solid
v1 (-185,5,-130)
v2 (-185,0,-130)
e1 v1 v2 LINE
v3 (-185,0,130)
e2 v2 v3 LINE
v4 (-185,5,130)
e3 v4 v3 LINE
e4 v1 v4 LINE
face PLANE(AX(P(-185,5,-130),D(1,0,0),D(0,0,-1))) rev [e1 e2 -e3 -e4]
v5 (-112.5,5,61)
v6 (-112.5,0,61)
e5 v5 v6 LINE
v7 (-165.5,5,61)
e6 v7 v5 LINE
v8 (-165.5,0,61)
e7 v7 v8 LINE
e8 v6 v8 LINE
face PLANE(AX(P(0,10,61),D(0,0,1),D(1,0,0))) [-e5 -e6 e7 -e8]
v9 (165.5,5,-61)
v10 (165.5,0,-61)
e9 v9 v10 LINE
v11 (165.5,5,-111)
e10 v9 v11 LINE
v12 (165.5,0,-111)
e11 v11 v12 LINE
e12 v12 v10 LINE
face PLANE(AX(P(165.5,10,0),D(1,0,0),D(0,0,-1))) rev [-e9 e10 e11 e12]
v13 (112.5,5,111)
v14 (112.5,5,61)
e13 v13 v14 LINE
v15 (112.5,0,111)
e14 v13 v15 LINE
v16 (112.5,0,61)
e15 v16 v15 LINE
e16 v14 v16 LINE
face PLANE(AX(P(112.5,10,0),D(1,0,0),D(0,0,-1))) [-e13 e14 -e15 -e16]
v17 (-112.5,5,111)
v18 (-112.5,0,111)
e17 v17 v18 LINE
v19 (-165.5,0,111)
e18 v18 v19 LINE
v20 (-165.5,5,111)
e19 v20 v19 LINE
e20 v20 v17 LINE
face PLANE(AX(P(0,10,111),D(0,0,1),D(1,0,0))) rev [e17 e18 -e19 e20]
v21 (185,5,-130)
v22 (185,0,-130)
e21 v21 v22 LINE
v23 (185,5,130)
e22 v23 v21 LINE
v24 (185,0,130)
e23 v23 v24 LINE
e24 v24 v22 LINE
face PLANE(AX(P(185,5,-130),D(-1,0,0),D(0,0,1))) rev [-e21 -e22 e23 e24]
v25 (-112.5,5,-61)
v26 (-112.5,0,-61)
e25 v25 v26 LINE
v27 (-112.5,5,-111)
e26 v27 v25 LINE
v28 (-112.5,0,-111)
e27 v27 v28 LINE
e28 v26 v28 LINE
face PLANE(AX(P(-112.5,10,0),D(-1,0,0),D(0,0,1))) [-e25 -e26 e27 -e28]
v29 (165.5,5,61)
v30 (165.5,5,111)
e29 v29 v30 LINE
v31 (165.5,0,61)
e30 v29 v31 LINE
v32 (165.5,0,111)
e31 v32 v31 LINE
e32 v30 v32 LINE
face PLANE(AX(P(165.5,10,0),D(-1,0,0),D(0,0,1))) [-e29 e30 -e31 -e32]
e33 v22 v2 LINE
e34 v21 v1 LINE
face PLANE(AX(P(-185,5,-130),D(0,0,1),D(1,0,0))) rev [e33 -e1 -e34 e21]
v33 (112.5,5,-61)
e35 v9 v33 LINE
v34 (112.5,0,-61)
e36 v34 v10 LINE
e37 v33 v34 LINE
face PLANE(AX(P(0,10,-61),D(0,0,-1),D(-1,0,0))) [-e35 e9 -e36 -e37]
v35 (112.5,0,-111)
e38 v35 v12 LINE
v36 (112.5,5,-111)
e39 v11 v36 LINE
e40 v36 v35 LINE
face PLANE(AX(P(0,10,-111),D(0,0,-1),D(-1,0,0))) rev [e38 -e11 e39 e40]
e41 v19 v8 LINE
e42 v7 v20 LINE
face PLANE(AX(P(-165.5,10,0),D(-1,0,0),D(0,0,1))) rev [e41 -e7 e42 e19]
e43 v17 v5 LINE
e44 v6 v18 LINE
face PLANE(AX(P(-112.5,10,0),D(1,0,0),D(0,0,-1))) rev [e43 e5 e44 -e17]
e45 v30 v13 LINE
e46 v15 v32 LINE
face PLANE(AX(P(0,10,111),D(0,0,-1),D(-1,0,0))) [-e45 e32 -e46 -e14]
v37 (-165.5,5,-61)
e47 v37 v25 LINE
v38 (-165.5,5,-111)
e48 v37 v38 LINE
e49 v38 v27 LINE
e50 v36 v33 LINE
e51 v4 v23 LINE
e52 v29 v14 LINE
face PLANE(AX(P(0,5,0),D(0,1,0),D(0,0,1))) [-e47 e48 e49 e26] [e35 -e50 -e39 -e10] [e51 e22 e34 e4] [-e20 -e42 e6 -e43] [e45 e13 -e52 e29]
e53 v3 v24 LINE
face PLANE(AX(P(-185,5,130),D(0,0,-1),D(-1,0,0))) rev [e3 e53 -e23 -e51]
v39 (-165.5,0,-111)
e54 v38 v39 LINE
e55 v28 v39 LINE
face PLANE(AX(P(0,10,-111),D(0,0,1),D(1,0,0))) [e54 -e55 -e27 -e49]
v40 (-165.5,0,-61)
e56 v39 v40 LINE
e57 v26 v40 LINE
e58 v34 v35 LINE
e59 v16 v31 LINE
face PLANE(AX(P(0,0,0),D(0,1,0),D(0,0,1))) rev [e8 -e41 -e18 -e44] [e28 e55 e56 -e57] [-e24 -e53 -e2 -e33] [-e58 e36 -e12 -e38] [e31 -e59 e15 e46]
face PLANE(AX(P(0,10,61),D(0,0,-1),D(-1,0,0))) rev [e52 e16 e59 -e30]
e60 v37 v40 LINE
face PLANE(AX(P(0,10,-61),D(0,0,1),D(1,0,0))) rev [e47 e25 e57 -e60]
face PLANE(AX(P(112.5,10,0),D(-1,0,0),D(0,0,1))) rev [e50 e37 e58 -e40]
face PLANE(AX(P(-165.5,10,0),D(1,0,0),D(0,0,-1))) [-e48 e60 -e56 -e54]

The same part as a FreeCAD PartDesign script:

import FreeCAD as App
import Part
import Sketcher

V = App.Vector
Q = App.Units.Quantity

doc = App.newDocument("Part")
body = doc.addObject("PartDesign::Body", "Body")

# Sketch on XZ plane
sketch1 = doc.addObject("Sketcher::SketchObject", "Sketch")
body.addObject(sketch1)
sketch1.AttachmentSupport = (doc.XZ_Plane, [""])
sketch1.MapMode = "FlatFace"
sketch1.addGeometry([
    Part.LineSegment(V(-185, -130, 0), V(-185, 130, 0)),
    Part.LineSegment(V(-185, 130, 0), V(185, 130, 0)),
    Part.LineSegment(V(185, 130, 0), V(185, -130, 0)),
    Part.LineSegment(V(185, -130, 0), V(-185, -130, 0)),
], False)
sketch1.addConstraint([
    Sketcher.Constraint("Coincident", 0, 2, 1, 1),
    Sketcher.Constraint("Coincident", 1, 2, 2, 1),
    Sketcher.Constraint("Coincident", 2, 2, 3, 1),
    Sketcher.Constraint("Coincident", 3, 2, 0, 1),
    Sketcher.Constraint("Vertical", 0),
    Sketcher.Constraint("Horizontal", 1),
    Sketcher.Constraint("Vertical", 2),
    Sketcher.Constraint("Horizontal", 3),
    Sketcher.Constraint("Symmetric", 0, 2, 2, 2, -1, 1),
    Sketcher.Constraint("DistanceX", 1, 1, 1, 2, Q("370 mm")),
    Sketcher.Constraint("DistanceY", 0, 1, 0, 2, Q("260 mm")),
])
pad1 = doc.addObject("PartDesign::Pad", "Pad")
body.addObject(pad1)
pad1.Profile = sketch1
pad1.Length = 5
pad1.Reversed = True

# Sketch on XZ plane
sketch2 = doc.addObject("Sketcher::SketchObject", "Sketch001")
body.addObject(sketch2)
sketch2.AttachmentSupport = (doc.XZ_Plane, [""])
sketch2.MapMode = "FlatFace"
sketch2.addGeometry([
    Part.LineSegment(V(-166, 111, 0), V(-166, 61, 0)),  # 0
    Part.LineSegment(V(-166, 61, 0), V(-112, 61, 0)),  # 1
    Part.LineSegment(V(-112, 61, 0), V(-112, 111, 0)),  # 2
    Part.LineSegment(V(-112, 111, 0), V(-166, 111, 0)),  # 3
    Part.LineSegment(V(-166, -61, 0), V(-166, -111, 0)),  # 4
    Part.LineSegment(V(-166, -111, 0), V(-112, -111, 0)),  # 5
    Part.LineSegment(V(-112, -111, 0), V(-112, -61, 0)),  # 6
    Part.LineSegment(V(-112, -61, 0), V(-166, -61, 0)),  # 7
    Part.LineSegment(V(112, 111, 0), V(112, 61, 0)),  # 8
    Part.LineSegment(V(112, 61, 0), V(166, 61, 0)),  # 9
    Part.LineSegment(V(166, 61, 0), V(166, 111, 0)),  # 10
    Part.LineSegment(V(166, 111, 0), V(112, 111, 0)),  # 11
    Part.LineSegment(V(112, -61, 0), V(112, -111, 0)),  # 12
    Part.LineSegment(V(112, -111, 0), V(166, -111, 0)),  # 13
    Part.LineSegment(V(166, -111, 0), V(166, -61, 0)),  # 14
    Part.LineSegment(V(166, -61, 0), V(112, -61, 0)),  # 15
], False)
sketch2.addConstraint([
    Sketcher.Constraint("Coincident", 0, 2, 1, 1),
    Sketcher.Constraint("Coincident", 1, 2, 2, 1),
    Sketcher.Constraint("Coincident", 2, 2, 3, 1),
    Sketcher.Constraint("Coincident", 3, 2, 0, 1),
    Sketcher.Constraint("Coincident", 4, 2, 5, 1),
    Sketcher.Constraint("Coincident", 5, 2, 6, 1),
    Sketcher.Constraint("Coincident", 6, 2, 7, 1),
    Sketcher.Constraint("Coincident", 7, 2, 4, 1),
    Sketcher.Constraint("Coincident", 8, 2, 9, 1),
    Sketcher.Constraint("Coincident", 9, 2, 10, 1),
    Sketcher.Constraint("Coincident", 10, 2, 11, 1),
    Sketcher.Constraint("Coincident", 11, 2, 8, 1),
    Sketcher.Constraint("Coincident", 12, 2, 13, 1),
    Sketcher.Constraint("Coincident", 13, 2, 14, 1),
    Sketcher.Constraint("Coincident", 14, 2, 15, 1),
    Sketcher.Constraint("Coincident", 15, 2, 12, 1),
    Sketcher.Constraint("Vertical", 0),
    Sketcher.Constraint("Horizontal", 1),
    Sketcher.Constraint("Vertical", 2),
    Sketcher.Constraint("Horizontal", 3),
    Sketcher.Constraint("Vertical", 4),
    Sketcher.Constraint("Horizontal", 5),
    Sketcher.Constraint("Vertical", 6),
    Sketcher.Constraint("Horizontal", 7),
    Sketcher.Constraint("Vertical", 8),
    Sketcher.Constraint("Horizontal", 9),
    Sketcher.Constraint("Vertical", 10),
    Sketcher.Constraint("Horizontal", 11),
    Sketcher.Constraint("Vertical", 12),
    Sketcher.Constraint("Horizontal", 13),
    Sketcher.Constraint("Vertical", 14),
    Sketcher.Constraint("Horizontal", 15),
    Sketcher.Constraint("Symmetric", 6, 2, 8, 2, -1, 1),
    Sketcher.Constraint("Symmetric", 4, 2, 10, 2, -1, 1),
    Sketcher.Constraint("Symmetric", 2, 2, 12, 2, -1, 1),
    Sketcher.Constraint("Symmetric", 0, 2, 14, 2, -1, 1),
    Sketcher.Constraint("Symmetric", 1, 2, 8, 2, -2),
    Sketcher.Constraint("Symmetric", 3, 2, 10, 2, -2),
    Sketcher.Constraint("DistanceX", 1, 1, 1, 2, Q("53 mm")),
    Sketcher.Constraint("DistanceY", 0, 2, 0, 1, Q("50 mm")),
    Sketcher.Constraint("DistanceY", -1, 1, 0, 2, Q("61 mm")),
    Sketcher.Constraint("DistanceX", 1, 2, 8, 2, Q("225 mm")),
])
pocket1 = doc.addObject("PartDesign::Pocket", "Pocket")
body.addObject(pocket1)
pocket1.Profile = sketch2
pocket1.Length = 10

doc.recompute()
